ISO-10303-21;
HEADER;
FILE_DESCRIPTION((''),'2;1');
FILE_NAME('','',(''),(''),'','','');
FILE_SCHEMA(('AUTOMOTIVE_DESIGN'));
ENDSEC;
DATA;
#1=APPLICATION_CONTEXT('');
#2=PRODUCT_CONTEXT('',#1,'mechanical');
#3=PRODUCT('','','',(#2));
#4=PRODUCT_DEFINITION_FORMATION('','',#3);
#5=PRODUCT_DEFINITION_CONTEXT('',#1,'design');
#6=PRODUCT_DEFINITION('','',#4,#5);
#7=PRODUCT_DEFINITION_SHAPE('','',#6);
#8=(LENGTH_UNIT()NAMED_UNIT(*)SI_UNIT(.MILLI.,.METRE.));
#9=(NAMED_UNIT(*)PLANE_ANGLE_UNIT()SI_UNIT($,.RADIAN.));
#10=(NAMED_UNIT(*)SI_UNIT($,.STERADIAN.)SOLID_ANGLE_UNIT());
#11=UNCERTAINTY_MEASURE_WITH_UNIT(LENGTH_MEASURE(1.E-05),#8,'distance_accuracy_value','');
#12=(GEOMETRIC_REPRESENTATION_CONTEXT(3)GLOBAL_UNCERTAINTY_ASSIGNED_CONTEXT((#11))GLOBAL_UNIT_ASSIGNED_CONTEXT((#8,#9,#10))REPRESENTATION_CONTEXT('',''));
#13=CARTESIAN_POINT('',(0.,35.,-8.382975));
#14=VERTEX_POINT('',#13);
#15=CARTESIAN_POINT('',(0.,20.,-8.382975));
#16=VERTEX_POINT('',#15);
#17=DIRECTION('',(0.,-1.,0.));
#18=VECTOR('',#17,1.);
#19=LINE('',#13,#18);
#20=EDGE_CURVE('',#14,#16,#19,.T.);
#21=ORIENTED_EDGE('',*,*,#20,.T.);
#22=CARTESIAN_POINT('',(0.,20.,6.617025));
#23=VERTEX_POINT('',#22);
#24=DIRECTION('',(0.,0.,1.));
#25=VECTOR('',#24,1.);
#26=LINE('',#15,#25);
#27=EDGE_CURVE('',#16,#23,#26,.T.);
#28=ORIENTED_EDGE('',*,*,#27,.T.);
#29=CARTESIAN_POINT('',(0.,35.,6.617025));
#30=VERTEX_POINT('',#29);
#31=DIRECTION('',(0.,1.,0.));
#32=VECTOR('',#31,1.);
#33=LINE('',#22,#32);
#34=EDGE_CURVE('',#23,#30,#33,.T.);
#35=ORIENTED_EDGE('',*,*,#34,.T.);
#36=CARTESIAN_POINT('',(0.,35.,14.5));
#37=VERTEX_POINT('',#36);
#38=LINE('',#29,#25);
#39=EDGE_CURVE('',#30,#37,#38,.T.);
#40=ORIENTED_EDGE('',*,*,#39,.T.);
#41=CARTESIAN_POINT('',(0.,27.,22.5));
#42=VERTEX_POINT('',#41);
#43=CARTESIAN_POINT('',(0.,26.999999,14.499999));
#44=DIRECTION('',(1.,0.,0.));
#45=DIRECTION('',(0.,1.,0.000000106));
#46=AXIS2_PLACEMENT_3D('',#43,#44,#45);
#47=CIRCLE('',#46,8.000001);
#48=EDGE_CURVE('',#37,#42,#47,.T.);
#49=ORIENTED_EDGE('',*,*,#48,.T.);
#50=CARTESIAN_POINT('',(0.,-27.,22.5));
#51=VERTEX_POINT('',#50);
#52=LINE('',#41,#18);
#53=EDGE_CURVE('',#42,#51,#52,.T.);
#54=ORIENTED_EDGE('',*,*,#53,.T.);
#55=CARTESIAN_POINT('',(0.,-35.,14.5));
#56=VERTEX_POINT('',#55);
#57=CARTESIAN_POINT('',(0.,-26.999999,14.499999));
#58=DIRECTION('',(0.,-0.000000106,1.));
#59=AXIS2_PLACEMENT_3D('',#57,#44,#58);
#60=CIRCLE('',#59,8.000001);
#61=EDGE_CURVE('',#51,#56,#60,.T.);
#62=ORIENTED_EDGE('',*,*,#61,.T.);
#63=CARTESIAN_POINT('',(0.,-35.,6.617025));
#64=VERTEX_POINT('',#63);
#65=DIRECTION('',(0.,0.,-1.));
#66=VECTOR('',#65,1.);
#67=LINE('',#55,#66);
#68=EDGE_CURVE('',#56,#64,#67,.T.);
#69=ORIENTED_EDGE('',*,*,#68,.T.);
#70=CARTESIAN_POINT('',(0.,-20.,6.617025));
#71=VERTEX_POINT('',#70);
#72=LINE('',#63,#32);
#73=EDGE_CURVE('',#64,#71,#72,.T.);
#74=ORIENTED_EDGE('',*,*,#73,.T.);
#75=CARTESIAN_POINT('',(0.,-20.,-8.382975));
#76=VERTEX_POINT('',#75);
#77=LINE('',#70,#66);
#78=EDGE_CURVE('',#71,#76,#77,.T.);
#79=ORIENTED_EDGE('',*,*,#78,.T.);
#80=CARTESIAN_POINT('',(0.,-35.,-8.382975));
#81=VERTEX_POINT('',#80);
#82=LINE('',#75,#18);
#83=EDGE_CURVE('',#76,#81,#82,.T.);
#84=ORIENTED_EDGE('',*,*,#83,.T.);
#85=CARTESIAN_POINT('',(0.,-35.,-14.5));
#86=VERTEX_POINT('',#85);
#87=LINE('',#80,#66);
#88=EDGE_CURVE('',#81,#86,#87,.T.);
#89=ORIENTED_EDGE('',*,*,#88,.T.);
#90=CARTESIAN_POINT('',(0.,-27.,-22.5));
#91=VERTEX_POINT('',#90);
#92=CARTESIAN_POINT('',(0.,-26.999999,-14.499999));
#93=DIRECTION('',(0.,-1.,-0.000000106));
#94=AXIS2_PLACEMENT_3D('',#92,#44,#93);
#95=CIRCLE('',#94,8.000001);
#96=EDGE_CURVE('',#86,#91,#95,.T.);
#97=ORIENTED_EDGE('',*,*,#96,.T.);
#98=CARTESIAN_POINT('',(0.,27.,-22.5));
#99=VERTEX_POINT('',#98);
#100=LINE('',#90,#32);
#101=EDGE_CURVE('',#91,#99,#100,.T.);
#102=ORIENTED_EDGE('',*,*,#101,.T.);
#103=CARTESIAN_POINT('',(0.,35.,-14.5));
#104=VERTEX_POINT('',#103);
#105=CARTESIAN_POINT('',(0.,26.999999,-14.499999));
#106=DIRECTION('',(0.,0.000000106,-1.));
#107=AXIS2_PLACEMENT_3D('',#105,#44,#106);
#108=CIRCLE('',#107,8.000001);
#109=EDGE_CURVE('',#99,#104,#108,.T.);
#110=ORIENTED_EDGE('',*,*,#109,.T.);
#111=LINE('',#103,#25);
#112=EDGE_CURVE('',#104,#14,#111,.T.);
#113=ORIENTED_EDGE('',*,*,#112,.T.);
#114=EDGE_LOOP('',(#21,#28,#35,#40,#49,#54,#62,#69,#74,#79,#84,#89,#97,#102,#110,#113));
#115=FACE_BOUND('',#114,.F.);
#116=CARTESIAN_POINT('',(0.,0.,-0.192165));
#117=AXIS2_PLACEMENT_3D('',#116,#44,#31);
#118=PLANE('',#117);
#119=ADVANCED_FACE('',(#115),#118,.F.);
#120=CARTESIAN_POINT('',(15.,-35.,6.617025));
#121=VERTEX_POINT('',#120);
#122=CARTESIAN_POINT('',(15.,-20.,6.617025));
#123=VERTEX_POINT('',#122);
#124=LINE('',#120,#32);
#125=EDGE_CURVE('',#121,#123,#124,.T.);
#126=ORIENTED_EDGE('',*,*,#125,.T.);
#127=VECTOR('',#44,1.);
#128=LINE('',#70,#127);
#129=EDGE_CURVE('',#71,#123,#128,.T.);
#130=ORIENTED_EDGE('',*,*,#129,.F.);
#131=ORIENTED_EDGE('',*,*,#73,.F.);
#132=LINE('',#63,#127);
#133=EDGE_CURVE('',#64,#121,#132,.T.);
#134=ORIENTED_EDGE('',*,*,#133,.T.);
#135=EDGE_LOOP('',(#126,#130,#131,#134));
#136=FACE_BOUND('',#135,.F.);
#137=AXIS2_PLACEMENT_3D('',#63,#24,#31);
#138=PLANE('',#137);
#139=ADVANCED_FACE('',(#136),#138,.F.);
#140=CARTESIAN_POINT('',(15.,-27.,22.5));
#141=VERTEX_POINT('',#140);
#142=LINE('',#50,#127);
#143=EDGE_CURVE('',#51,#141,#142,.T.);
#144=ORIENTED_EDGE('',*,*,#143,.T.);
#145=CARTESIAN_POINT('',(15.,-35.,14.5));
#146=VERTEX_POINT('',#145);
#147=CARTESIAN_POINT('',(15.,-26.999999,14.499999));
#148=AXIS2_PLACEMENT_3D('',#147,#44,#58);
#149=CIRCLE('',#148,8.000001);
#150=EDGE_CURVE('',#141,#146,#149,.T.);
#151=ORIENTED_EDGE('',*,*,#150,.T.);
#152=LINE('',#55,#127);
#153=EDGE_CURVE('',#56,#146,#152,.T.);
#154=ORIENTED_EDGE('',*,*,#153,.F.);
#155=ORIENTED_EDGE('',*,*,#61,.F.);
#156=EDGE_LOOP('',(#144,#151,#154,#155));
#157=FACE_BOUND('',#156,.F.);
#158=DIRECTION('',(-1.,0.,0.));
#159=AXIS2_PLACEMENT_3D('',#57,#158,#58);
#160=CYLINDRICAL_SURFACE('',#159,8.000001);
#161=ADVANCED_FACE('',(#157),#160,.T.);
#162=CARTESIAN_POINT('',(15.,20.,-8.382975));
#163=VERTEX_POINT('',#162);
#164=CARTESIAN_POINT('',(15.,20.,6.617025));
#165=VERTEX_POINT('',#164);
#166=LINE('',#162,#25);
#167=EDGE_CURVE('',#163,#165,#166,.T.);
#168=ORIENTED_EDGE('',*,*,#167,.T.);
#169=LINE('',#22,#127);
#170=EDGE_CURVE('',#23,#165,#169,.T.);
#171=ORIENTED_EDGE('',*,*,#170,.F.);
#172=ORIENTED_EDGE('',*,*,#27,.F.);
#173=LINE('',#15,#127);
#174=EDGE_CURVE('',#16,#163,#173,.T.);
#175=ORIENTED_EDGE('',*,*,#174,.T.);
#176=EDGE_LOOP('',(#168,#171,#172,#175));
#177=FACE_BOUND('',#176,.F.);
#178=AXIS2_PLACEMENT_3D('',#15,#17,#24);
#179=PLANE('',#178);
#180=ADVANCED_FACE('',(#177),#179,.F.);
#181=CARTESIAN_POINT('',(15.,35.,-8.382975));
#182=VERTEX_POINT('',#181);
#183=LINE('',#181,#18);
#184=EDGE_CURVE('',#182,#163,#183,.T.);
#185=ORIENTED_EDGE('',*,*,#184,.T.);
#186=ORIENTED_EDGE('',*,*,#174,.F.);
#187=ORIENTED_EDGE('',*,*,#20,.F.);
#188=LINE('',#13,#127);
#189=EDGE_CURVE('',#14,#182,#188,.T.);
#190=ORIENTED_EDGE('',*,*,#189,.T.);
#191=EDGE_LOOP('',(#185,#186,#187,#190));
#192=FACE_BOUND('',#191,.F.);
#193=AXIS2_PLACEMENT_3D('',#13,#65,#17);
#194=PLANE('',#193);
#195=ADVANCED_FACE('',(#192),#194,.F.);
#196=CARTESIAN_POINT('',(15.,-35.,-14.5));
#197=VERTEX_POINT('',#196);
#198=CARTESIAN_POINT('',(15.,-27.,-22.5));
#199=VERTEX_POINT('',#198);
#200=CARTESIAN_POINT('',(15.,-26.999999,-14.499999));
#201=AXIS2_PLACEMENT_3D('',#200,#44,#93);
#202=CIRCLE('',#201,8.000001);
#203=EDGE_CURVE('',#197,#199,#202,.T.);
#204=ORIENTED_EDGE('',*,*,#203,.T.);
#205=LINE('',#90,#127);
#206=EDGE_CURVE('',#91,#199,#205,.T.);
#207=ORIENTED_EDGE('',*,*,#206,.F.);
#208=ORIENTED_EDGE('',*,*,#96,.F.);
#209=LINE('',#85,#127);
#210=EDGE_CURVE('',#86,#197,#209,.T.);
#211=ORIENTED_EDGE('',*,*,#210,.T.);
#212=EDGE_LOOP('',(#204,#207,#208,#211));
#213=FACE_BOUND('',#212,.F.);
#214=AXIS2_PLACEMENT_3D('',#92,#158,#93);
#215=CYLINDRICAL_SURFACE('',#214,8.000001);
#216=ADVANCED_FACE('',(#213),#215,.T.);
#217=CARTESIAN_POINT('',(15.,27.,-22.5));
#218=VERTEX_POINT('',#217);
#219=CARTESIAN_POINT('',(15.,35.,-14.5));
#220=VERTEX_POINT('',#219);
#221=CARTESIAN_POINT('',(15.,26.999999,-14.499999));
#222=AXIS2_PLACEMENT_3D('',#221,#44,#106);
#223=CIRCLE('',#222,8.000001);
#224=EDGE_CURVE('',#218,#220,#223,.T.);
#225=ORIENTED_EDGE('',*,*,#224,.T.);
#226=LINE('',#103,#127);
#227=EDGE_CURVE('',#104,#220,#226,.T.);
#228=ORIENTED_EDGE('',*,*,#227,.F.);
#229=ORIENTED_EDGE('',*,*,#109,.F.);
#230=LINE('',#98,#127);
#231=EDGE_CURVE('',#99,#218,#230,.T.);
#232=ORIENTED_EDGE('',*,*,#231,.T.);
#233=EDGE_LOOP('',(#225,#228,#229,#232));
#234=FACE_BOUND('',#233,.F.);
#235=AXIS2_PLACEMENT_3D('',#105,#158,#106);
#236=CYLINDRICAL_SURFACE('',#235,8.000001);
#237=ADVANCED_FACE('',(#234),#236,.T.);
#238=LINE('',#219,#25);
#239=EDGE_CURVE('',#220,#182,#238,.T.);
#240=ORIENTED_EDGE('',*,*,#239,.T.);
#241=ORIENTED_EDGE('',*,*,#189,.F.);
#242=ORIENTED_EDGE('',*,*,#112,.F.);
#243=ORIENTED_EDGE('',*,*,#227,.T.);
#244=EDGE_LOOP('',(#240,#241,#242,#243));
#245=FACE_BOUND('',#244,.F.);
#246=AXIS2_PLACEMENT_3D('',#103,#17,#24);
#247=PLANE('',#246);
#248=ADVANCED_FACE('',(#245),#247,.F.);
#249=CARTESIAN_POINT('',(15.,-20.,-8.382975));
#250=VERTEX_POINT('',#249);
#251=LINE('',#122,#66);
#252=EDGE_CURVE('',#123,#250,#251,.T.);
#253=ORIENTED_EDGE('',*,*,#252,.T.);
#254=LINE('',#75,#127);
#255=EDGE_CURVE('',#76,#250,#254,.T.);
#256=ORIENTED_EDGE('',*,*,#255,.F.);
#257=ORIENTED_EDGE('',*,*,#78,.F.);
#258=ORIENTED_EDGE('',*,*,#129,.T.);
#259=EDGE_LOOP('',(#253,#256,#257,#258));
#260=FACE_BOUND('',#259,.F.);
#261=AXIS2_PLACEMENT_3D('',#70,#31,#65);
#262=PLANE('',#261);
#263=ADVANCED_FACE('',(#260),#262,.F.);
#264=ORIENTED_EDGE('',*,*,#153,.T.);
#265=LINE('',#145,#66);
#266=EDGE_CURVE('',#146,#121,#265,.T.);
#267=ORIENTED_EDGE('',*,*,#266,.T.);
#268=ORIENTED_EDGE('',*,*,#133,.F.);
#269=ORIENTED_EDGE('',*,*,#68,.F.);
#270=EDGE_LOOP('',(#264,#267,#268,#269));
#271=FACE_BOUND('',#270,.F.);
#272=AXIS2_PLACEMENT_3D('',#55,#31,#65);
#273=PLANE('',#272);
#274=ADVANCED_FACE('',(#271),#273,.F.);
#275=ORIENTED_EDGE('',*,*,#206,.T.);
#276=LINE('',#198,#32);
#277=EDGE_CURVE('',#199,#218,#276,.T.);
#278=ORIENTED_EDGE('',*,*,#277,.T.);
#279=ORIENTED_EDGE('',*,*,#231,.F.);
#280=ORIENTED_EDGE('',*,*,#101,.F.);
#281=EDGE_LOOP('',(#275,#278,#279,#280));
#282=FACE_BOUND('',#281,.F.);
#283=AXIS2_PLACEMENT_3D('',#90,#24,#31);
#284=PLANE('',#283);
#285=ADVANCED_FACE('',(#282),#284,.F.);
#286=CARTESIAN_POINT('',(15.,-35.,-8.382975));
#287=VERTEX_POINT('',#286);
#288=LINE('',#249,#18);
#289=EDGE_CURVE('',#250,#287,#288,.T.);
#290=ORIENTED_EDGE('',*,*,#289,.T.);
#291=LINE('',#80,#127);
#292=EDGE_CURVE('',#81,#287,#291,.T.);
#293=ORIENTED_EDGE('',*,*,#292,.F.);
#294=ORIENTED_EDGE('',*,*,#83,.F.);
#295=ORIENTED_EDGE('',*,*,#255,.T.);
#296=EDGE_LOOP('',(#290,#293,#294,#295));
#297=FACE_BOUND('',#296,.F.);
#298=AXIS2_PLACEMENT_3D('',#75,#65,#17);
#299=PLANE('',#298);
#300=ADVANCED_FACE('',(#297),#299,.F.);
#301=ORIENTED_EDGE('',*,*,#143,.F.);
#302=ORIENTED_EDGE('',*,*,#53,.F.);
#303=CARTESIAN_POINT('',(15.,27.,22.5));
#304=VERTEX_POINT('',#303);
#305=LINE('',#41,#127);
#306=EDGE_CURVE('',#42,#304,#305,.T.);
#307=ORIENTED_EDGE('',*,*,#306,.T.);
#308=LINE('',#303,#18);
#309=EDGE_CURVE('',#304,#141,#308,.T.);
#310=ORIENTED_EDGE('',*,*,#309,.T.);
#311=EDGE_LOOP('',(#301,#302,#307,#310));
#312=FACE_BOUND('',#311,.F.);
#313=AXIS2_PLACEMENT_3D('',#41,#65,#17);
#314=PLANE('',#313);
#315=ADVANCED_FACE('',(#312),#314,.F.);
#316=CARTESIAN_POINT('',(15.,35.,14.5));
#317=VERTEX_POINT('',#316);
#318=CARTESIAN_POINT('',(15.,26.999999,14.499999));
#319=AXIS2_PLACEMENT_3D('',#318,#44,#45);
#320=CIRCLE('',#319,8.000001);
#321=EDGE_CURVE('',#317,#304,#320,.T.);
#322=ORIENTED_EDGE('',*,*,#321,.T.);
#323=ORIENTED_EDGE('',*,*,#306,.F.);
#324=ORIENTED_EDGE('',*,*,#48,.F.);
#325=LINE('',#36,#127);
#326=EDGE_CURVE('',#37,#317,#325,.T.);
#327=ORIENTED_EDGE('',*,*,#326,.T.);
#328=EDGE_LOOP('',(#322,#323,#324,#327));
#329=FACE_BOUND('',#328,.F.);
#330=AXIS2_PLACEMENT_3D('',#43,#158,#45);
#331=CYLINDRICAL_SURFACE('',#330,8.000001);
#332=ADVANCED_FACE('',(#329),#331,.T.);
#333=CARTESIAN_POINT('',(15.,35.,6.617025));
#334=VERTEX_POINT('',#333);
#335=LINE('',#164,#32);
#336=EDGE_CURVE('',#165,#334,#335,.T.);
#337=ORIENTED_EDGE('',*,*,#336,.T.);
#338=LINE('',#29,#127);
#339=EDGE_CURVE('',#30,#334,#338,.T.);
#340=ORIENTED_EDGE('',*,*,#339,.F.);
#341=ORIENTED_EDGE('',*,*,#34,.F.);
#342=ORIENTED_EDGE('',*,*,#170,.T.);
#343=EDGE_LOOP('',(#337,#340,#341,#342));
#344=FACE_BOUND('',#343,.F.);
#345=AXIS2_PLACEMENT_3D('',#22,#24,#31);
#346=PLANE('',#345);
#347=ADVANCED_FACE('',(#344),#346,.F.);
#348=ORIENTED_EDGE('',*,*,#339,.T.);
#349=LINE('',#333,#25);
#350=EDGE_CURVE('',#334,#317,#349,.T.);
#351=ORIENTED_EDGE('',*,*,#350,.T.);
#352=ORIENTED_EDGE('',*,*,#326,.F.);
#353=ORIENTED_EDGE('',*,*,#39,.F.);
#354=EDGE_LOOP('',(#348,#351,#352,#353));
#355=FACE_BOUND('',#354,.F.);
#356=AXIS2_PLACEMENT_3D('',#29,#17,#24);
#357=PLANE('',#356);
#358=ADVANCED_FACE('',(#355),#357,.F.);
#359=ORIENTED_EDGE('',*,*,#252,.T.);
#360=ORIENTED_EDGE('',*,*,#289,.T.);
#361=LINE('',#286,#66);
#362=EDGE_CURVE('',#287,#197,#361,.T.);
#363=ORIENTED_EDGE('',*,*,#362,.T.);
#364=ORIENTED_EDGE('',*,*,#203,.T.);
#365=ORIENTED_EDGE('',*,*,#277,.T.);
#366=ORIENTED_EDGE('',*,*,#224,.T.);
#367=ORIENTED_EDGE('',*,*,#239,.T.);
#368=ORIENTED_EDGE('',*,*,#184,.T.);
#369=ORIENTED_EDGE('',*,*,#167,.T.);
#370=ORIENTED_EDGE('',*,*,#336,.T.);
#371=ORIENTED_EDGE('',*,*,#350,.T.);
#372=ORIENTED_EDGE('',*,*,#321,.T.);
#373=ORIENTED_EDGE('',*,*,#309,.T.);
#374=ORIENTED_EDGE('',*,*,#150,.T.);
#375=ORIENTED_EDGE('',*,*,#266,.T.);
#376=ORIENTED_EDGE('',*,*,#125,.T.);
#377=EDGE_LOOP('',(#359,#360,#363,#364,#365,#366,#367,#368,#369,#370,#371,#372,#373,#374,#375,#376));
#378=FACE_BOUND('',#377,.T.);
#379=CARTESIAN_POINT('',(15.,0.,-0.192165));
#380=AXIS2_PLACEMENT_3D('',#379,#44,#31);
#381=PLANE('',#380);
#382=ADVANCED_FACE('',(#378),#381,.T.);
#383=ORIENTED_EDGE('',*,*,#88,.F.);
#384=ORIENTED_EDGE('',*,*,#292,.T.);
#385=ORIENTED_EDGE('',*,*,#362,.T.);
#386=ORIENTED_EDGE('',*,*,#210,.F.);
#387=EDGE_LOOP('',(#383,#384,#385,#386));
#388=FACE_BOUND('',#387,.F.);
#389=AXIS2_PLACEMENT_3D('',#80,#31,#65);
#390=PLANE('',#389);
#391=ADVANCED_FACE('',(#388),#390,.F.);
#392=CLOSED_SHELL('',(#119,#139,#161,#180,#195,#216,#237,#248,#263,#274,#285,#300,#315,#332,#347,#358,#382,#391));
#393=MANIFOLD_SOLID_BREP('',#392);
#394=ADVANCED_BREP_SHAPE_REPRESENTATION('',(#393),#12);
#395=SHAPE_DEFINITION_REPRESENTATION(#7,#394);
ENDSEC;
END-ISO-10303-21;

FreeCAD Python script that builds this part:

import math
import FreeCAD as App
import Part
import Sketcher
from FreeCAD import Vector
Q = App.Units.Quantity

doc = App.newDocument("Part")
body = doc.addObject("PartDesign::Body", "Body")

sketch1 = body.newObject("Sketcher::SketchObject", "Sketch")
sketch1.AttachmentSupport = (doc.getObject("YZ_Plane"), [""])
sketch1.MapMode = "FlatFace"
sketch1.addGeometry([
    Part.ArcOfCircle(Part.Circle(Vector(26.999999, 14.499999, 0), Vector(0, 0, 1), 8.000001), math.radians(0.000006), math.radians(89.999994)),
    Part.LineSegment(Vector(27, 22.5, 0), Vector(-27, 22.5, 0)),
    Part.ArcOfCircle(Part.Circle(Vector(-26.999999, 14.499999, 0), Vector(0, 0, 1), 8.000001), math.radians(90.000006), math.radians(179.999994)),
    Part.LineSegment(Vector(-35, 14.5, 0), Vector(-35, 6.617025, 0)),
    Part.LineSegment(Vector(-35, 6.617025, 0), Vector(-20, 6.617025, 0)),
    Part.LineSegment(Vector(-20, 6.617025, 0), Vector(-20, -8.382975, 0)),
    Part.LineSegment(Vector(-20, -8.382975, 0), Vector(-35, -8.382975, 0)),
    Part.LineSegment(Vector(-35, -8.382975, 0), Vector(-35, -14.5, 0)),
    Part.ArcOfCircle(Part.Circle(Vector(-26.999999, -14.499999, 0), Vector(0, 0, 1), 8.000001), math.radians(-179.999994), math.radians(-90.000006)),
    Part.LineSegment(Vector(-27, -22.5, 0), Vector(27, -22.5, 0)),
    Part.ArcOfCircle(Part.Circle(Vector(26.999999, -14.499999, 0), Vector(0, 0, 1), 8.000001), math.radians(-89.999994), math.radians(-0.000006)),
    Part.LineSegment(Vector(35, -14.5, 0), Vector(35, -8.382975, 0)),
    Part.LineSegment(Vector(35, -8.382975, 0), Vector(20, -8.382975, 0)),
    Part.LineSegment(Vector(20, -8.382975, 0), Vector(20, 6.617025, 0)),
    Part.LineSegment(Vector(20, 6.617025, 0), Vector(35, 6.617025, 0)),
    Part.LineSegment(Vector(35, 6.617025, 0), Vector(35, 14.5, 0)),
], False)
sketch1.addConstraint([
    Sketcher.Constraint("Tangent", 0, 2, 1, 1),
    Sketcher.Constraint("Tangent", 1, 2, 2, 1),
    Sketcher.Constraint("Tangent", 2, 2, 3, 1),
    Sketcher.Constraint("Coincident", 3, 2, 4, 1),
    Sketcher.Constraint("Coincident", 4, 2, 5, 1),
    Sketcher.Constraint("Coincident", 5, 2, 6, 1),
    Sketcher.Constraint("Coincident", 6, 2, 7, 1),
    Sketcher.Constraint("Tangent", 7, 2, 8, 1),
    Sketcher.Constraint("Tangent", 8, 2, 9, 1),
    Sketcher.Constraint("Tangent", 9, 2, 10, 1),
    Sketcher.Constraint("Tangent", 10, 2, 11, 1),
    Sketcher.Constraint("Coincident", 11, 2, 12, 1),
    Sketcher.Constraint("Coincident", 12, 2, 13, 1),
    Sketcher.Constraint("Coincident", 13, 2, 14, 1),
    Sketcher.Constraint("Coincident", 14, 2, 15, 1),
    Sketcher.Constraint("Tangent", 15, 2, 0, 1),
    Sketcher.Constraint("Horizontal", 1),
    Sketcher.Constraint("Vertical", 3),
    Sketcher.Constraint("Horizontal", 4),
    Sketcher.Constraint("Vertical", 5),
    Sketcher.Constraint("Horizontal", 6),
    Sketcher.Constraint("Vertical", 7),
    Sketcher.Constraint("Horizontal", 9),
    Sketcher.Constraint("Vertical", 11),
    Sketcher.Constraint("Horizontal", 12),
    Sketcher.Constraint("Vertical", 13),
    Sketcher.Constraint("Horizontal", 14),
    Sketcher.Constraint("Vertical", 15),
    Sketcher.Constraint("Equal", 0, 2),
    Sketcher.Constraint("Equal", 2, 8),
    Sketcher.Constraint("Equal", 8, 10),
    Sketcher.Constraint("Symmetric", 0, 3, 8, 3, -1, 1),
    Sketcher.Constraint("Symmetric", 6, 2, 11, 2, -2),
    Sketcher.Constraint("Symmetric", 4, 2, 13, 2, -2),
    Sketcher.Constraint("Vertical", 2, 3, 8, 3),
    Sketcher.Constraint("Equal", 14, 5),
    Sketcher.Constraint("Radius", 0, Q("8.000001 mm")),
    Sketcher.Constraint("DistanceX", 1, 2, 1, 1, Q("54 mm")),
    Sketcher.Constraint("DistanceX", 4, 1, 4, 2, Q("15 mm")),
    Sketcher.Constraint("DistanceY", 8, 3, 2, 3, Q("28.999998 mm")),
    Sketcher.Constraint("DistanceY", 3, 2, 3, 1, Q("7.882975 mm")),
])
pad1 = body.newObject("PartDesign::Pad", "Pad")
pad1.Profile = sketch1
pad1.Length = 15

doc.recompute()
